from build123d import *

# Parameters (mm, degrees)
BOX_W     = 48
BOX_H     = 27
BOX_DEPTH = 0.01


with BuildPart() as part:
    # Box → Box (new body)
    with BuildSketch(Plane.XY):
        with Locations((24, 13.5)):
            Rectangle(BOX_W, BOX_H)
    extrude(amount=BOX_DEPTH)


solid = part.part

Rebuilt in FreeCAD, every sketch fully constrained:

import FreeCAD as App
import Part
import Sketcher


def add_polygon(sketch, points):
    """Adds a closed chain of lines whose ends are joined by coincident constraints."""
    first, n = sketch.GeometryCount, len(points)
    for a, b in zip(points, points[1:] + points[:1]):
        sketch.addGeometry(Part.LineSegment(App.Vector(*a, 0), App.Vector(*b, 0)), False)
    for i in range(n):
        sketch.addConstraint(Sketcher.Constraint("Coincident", first + i, 2, first + (i + 1) % n, 1))

doc = App.newDocument("Part")
params = doc.addObject("Spreadsheet::Sheet", "Params")
for row, (alias, value) in enumerate([
    ("sketch1_width", "48 mm"),
    ("sketch1_height", "27 mm"),
    ("pad1_length", "0.01 mm"),
], start=1):
    params.set(f"A{row}", alias)
    params.set(f"B{row}", "=" + value)
    params.setAlias(f"B{row}", alias)

body = doc.addObject("PartDesign::Body", "Body")

# Sketch on XY plane
sketch1 = body.newObject("Sketcher::SketchObject", "Sketch")
sketch1.AttachmentSupport = (doc.getObject("XY_Plane"), [""])
sketch1.MapMode = "FlatFace"
add_polygon(sketch1, [(0, 27), (0, 0), (48, 0), (48, 27)])  # lines 0-3
sketch1.addConstraint([
    Sketcher.Constraint("Vertical", 0),
    Sketcher.Constraint("Horizontal", 1),
    Sketcher.Constraint("Vertical", 2),
    Sketcher.Constraint("Horizontal", 3),
    Sketcher.Constraint("Coincident", 0, 2, -1, 1),
    Sketcher.Constraint("DistanceX", 1, 1, 1, 2, 48.0),
    Sketcher.Constraint("DistanceY", 0, 2, 0, 1, 27.0),
])
sketch1.setExpression("Constraints[9]", "Params.sketch1_width")
sketch1.setExpression("Constraints[10]", "Params.sketch1_height")
pad1 = body.newObject("PartDesign::Pad", "Pad")
pad1.Profile = sketch1
pad1.setExpression("Length", "Params.pad1_length")

doc.recompute()
